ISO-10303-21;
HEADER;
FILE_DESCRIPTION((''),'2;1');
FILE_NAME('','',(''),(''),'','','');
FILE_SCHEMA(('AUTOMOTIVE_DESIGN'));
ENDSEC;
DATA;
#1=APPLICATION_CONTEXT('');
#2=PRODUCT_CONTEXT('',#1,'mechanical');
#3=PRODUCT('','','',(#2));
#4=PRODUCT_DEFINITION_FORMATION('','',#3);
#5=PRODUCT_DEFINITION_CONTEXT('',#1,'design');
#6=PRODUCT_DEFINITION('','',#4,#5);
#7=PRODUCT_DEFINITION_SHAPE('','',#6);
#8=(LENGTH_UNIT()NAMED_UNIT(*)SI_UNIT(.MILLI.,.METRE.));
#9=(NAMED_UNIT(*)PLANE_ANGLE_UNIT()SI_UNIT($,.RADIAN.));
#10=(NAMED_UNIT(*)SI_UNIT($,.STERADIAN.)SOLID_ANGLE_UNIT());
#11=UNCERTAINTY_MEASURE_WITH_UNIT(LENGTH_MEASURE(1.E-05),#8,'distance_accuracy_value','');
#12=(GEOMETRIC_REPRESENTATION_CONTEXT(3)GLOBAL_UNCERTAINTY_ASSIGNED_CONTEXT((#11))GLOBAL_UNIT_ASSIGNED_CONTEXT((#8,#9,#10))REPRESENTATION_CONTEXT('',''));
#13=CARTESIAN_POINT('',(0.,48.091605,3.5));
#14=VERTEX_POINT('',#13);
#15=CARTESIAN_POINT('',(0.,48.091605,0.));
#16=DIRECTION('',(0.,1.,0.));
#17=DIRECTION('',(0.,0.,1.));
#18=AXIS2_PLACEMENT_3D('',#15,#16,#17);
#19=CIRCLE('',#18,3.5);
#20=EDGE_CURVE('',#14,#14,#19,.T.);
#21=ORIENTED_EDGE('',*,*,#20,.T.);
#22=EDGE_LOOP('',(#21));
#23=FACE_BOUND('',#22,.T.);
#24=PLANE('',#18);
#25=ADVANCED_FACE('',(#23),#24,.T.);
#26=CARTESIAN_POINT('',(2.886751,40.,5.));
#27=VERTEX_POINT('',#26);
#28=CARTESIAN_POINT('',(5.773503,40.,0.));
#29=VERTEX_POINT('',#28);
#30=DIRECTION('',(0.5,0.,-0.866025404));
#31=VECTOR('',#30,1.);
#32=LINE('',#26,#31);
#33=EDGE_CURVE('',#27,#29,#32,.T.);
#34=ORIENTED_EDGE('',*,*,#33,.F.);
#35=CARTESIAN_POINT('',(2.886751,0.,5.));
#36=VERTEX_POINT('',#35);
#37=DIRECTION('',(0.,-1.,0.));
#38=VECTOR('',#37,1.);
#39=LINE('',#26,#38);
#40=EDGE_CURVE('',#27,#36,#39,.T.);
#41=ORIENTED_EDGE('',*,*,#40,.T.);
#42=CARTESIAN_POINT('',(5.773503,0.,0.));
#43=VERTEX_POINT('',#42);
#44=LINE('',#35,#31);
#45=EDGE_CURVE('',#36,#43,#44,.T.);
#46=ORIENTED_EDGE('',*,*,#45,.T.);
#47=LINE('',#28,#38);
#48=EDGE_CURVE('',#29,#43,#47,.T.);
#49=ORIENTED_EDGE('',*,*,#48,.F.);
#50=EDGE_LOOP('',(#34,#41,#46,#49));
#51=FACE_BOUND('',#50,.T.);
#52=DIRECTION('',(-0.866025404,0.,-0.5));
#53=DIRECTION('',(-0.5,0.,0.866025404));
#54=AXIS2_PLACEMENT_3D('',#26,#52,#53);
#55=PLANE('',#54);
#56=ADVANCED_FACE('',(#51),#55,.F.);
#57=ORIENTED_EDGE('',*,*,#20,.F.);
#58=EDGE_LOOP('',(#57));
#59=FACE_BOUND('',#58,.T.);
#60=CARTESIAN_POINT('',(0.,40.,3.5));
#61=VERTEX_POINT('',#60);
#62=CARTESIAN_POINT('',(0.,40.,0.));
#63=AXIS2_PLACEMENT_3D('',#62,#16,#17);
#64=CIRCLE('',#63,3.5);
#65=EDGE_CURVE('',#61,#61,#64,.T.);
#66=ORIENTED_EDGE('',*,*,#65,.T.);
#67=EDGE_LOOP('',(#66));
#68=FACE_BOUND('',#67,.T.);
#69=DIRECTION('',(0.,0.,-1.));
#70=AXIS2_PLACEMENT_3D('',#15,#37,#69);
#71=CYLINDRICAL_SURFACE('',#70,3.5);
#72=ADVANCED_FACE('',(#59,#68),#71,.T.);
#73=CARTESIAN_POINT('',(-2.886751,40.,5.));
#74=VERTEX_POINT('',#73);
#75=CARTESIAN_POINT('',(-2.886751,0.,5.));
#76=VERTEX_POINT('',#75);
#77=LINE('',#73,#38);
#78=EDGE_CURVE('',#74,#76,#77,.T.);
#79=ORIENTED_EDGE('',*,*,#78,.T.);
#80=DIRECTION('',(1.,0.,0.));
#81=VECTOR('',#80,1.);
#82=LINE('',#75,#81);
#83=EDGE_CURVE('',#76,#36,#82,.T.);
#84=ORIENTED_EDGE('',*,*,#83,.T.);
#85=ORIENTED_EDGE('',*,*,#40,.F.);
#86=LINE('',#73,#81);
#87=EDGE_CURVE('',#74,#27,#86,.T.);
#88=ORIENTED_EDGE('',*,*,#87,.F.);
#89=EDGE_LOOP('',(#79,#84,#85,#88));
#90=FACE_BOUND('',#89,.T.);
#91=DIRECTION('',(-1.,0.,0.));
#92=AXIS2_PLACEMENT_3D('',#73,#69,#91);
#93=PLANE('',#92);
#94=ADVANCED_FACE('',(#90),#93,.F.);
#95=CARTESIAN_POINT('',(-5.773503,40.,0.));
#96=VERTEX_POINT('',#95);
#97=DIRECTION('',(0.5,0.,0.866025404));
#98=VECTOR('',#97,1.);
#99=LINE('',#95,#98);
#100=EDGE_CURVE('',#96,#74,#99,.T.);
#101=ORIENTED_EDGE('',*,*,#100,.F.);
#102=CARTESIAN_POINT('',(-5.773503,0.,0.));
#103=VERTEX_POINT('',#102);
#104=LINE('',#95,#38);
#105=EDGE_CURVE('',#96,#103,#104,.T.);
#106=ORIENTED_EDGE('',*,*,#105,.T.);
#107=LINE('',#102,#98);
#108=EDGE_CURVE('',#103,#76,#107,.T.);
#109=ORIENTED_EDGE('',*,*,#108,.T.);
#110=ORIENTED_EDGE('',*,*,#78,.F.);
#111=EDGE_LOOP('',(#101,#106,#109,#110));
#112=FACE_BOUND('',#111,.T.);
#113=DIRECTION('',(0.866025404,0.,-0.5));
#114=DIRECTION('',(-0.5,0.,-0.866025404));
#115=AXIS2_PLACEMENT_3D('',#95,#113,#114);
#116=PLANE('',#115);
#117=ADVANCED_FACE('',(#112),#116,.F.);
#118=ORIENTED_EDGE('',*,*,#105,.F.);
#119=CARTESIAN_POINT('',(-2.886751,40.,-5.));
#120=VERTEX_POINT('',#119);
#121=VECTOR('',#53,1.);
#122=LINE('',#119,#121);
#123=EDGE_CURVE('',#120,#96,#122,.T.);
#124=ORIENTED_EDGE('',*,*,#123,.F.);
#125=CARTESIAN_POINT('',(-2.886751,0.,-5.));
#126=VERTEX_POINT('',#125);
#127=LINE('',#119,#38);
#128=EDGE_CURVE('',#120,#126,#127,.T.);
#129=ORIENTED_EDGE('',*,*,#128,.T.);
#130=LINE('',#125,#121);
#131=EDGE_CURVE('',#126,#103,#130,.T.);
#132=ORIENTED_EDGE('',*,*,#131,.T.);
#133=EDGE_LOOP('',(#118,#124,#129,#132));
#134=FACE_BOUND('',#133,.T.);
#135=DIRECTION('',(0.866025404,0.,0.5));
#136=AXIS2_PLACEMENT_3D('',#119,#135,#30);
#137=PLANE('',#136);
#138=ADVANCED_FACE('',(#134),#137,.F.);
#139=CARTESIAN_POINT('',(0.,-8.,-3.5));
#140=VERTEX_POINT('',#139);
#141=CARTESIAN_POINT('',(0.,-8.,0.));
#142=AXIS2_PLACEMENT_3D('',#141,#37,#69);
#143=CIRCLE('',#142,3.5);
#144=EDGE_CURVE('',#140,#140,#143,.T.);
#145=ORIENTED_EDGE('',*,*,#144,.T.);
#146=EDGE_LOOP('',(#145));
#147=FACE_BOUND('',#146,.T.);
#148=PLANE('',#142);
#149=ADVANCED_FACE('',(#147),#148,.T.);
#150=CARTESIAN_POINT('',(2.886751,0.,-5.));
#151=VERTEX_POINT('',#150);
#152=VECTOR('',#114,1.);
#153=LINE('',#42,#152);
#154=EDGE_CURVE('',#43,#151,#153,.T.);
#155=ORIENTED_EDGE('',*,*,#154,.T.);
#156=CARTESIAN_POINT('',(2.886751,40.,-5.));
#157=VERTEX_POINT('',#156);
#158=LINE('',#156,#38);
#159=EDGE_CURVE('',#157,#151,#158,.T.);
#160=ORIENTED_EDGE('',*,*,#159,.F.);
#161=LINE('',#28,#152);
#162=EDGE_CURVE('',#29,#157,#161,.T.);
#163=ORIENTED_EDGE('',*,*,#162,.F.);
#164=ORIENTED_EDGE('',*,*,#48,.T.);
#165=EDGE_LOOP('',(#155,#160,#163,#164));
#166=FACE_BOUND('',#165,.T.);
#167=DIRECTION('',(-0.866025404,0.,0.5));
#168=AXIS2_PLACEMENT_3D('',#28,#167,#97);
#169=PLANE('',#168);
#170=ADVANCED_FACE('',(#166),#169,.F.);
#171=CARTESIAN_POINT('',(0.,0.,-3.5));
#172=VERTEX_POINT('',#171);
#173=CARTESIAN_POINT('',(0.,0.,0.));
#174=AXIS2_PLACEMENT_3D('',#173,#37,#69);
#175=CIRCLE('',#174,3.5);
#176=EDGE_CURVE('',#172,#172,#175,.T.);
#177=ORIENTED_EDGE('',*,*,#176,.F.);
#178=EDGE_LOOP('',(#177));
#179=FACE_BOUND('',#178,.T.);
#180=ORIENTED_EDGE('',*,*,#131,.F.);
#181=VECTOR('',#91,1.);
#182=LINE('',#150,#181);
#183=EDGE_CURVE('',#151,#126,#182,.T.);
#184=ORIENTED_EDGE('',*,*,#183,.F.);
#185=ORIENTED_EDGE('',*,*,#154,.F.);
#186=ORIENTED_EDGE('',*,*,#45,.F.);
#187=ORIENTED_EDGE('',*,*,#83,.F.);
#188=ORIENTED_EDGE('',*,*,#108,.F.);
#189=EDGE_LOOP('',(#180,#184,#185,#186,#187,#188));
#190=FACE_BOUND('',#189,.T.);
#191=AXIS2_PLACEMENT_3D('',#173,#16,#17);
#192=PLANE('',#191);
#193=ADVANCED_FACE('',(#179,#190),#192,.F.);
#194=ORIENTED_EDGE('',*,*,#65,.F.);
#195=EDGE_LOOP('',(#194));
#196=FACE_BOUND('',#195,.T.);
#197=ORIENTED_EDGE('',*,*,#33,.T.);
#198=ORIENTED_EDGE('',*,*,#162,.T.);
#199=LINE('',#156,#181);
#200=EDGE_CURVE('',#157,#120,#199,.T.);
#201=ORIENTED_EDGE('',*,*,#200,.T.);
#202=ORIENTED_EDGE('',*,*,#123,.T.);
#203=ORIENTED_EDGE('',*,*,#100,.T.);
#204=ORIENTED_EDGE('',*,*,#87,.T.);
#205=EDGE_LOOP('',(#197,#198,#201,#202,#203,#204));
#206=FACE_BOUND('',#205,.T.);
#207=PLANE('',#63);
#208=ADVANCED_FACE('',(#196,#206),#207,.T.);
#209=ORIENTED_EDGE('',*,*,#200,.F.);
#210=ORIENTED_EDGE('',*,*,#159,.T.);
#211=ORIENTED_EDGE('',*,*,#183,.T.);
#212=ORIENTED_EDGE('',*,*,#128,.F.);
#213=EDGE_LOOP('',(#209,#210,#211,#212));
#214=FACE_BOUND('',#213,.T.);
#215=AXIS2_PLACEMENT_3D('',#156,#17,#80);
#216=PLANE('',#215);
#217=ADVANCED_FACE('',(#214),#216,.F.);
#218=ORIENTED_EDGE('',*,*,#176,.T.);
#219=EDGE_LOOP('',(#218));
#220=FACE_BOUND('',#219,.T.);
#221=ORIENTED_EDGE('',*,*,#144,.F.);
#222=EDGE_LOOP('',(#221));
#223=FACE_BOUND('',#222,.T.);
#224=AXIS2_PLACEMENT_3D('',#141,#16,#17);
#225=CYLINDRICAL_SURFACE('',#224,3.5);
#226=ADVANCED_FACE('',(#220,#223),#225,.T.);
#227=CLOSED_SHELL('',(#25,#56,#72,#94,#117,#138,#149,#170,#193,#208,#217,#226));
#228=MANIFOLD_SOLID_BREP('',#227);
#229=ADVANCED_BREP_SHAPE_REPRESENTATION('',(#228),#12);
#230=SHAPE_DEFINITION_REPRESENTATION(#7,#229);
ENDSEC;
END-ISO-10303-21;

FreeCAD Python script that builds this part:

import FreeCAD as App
import Part
import Sketcher
Q = App.Units.Quantity

doc = App.newDocument("Part")
body = doc.addObject("PartDesign::Body", "Body")

sketch1 = doc.addObject("Sketcher::SketchObject", "Sketch")
body.addObject(sketch1)
sketch1.AttachmentSupport = (doc.XZ_Plane, [""])
sketch1.MapMode = "FlatFace"
sketch1.addGeometry([
    Part.LineSegment(App.Vector(-5.773503, 0, 0), App.Vector(-2.886751, 5, 0)),
    Part.LineSegment(App.Vector(-2.886751, 5, 0), App.Vector(2.886751, 5, 0)),
    Part.LineSegment(App.Vector(2.886751, 5, 0), App.Vector(5.773503, 0, 0)),
    Part.LineSegment(App.Vector(5.773503, 0, 0), App.Vector(2.886751, -5, 0)),
    Part.LineSegment(App.Vector(2.886751, -5, 0), App.Vector(-2.886751, -5, 0)),
    Part.LineSegment(App.Vector(-2.886751, -5, 0), App.Vector(-5.773503, 0, 0)),
], False)
sketch1.addConstraint([
    Sketcher.Constraint("Coincident", 0, 2, 1, 1),
    Sketcher.Constraint("Coincident", 1, 2, 2, 1),
    Sketcher.Constraint("Coincident", 2, 2, 3, 1),
    Sketcher.Constraint("Coincident", 3, 2, 4, 1),
    Sketcher.Constraint("Coincident", 4, 2, 5, 1),
    Sketcher.Constraint("Coincident", 5, 2, 0, 1),
    Sketcher.Constraint("Horizontal", 1),
    Sketcher.Constraint("Horizontal", 4),
    Sketcher.Constraint("Symmetric", 0, 2, 3, 2, -1, 1),
    Sketcher.Constraint("Symmetric", 2, 2, 5, 2, -1, 1),
    Sketcher.Constraint("PointOnObject", 2, 2, -1),
    Sketcher.Constraint("Parallel", 2, 5),
    Sketcher.Constraint("Vertical", 1, 2, 3, 2),
    Sketcher.Constraint("Angle", 0, Q("60 deg")),
    Sketcher.Constraint("DistanceY", -1, 1, 0, 2, Q("5 mm")),
    Sketcher.Constraint("DistanceX", 1, 1, 1, 2, Q("5.773503 mm")),
])
pad1 = doc.addObject("PartDesign::Pad", "Pad")
body.addObject(pad1)
pad1.Profile = sketch1
pad1.Length = 40
pad1.Reversed = True

sketch2 = doc.addObject("Sketcher::SketchObject", "Sketch001")
body.addObject(sketch2)
sketch2.AttachmentSupport = (doc.XZ_Plane, [""])
sketch2.MapMode = "FlatFace"
sketch2.AttachmentOffset = App.Placement(App.Vector(0, 0, -40), App.Rotation())
sketch2.addGeometry(Part.Circle(App.Vector(0, 0, 0), App.Vector(0, 0, 1), 3.5), False)
sketch2.addConstraint([
    Sketcher.Constraint("Coincident", 0, 3, -1, 1),
    Sketcher.Constraint("Diameter", 0, Q("7 mm")),
])
pad2 = doc.addObject("PartDesign::Pad", "Pad001")
body.addObject(pad2)
pad2.Profile = sketch2
pad2.Length = 8.091605
pad2.Reversed = True

sketch3 = doc.addObject("Sketcher::SketchObject", "Sketch002")
body.addObject(sketch3)
sketch3.AttachmentSupport = (doc.XZ_Plane, [""])
sketch3.MapMode = "FlatFace"
sketch3.AttachmentOffset = App.Placement(App.Vector(0, 0, -40), App.Rotation())
sketch3.addGeometry(Part.Circle(App.Vector(0, 0, 0), App.Vector(0, 0, 1), 3.5), False)
sketch3.addConstraint([
    Sketcher.Constraint("Coincident", 0, 3, -1, 1),
    Sketcher.Constraint("Diameter", 0, Q("7 mm")),
])
pad3 = doc.addObject("PartDesign::Pad", "Pad002")
body.addObject(pad3)
pad3.Profile = sketch3
pad3.Length = 8
pad3.Reversed = True

sketch4 = doc.addObject("Sketcher::SketchObject", "Sketch003")
body.addObject(sketch4)
sketch4.AttachmentSupport = (doc.XZ_Plane, [""])
sketch4.MapMode = "FlatFace"
sketch4.AttachmentOffset = App.Placement(App.Vector(0, 0, 8), App.Rotation())
sketch4.addGeometry(Part.Circle(App.Vector(0, 0, 0), App.Vector(0, 0, 1), 3.5), False)
sketch4.addConstraint([
    Sketcher.Constraint("Coincident", 0, 3, -1, 1),
    Sketcher.Constraint("Diameter", 0, Q("7 mm")),
])
pad4 = doc.addObject("PartDesign::Pad", "Pad003")
body.addObject(pad4)
pad4.Profile = sketch4
pad4.Length = 8
pad4.Reversed = True

doc.recompute()
